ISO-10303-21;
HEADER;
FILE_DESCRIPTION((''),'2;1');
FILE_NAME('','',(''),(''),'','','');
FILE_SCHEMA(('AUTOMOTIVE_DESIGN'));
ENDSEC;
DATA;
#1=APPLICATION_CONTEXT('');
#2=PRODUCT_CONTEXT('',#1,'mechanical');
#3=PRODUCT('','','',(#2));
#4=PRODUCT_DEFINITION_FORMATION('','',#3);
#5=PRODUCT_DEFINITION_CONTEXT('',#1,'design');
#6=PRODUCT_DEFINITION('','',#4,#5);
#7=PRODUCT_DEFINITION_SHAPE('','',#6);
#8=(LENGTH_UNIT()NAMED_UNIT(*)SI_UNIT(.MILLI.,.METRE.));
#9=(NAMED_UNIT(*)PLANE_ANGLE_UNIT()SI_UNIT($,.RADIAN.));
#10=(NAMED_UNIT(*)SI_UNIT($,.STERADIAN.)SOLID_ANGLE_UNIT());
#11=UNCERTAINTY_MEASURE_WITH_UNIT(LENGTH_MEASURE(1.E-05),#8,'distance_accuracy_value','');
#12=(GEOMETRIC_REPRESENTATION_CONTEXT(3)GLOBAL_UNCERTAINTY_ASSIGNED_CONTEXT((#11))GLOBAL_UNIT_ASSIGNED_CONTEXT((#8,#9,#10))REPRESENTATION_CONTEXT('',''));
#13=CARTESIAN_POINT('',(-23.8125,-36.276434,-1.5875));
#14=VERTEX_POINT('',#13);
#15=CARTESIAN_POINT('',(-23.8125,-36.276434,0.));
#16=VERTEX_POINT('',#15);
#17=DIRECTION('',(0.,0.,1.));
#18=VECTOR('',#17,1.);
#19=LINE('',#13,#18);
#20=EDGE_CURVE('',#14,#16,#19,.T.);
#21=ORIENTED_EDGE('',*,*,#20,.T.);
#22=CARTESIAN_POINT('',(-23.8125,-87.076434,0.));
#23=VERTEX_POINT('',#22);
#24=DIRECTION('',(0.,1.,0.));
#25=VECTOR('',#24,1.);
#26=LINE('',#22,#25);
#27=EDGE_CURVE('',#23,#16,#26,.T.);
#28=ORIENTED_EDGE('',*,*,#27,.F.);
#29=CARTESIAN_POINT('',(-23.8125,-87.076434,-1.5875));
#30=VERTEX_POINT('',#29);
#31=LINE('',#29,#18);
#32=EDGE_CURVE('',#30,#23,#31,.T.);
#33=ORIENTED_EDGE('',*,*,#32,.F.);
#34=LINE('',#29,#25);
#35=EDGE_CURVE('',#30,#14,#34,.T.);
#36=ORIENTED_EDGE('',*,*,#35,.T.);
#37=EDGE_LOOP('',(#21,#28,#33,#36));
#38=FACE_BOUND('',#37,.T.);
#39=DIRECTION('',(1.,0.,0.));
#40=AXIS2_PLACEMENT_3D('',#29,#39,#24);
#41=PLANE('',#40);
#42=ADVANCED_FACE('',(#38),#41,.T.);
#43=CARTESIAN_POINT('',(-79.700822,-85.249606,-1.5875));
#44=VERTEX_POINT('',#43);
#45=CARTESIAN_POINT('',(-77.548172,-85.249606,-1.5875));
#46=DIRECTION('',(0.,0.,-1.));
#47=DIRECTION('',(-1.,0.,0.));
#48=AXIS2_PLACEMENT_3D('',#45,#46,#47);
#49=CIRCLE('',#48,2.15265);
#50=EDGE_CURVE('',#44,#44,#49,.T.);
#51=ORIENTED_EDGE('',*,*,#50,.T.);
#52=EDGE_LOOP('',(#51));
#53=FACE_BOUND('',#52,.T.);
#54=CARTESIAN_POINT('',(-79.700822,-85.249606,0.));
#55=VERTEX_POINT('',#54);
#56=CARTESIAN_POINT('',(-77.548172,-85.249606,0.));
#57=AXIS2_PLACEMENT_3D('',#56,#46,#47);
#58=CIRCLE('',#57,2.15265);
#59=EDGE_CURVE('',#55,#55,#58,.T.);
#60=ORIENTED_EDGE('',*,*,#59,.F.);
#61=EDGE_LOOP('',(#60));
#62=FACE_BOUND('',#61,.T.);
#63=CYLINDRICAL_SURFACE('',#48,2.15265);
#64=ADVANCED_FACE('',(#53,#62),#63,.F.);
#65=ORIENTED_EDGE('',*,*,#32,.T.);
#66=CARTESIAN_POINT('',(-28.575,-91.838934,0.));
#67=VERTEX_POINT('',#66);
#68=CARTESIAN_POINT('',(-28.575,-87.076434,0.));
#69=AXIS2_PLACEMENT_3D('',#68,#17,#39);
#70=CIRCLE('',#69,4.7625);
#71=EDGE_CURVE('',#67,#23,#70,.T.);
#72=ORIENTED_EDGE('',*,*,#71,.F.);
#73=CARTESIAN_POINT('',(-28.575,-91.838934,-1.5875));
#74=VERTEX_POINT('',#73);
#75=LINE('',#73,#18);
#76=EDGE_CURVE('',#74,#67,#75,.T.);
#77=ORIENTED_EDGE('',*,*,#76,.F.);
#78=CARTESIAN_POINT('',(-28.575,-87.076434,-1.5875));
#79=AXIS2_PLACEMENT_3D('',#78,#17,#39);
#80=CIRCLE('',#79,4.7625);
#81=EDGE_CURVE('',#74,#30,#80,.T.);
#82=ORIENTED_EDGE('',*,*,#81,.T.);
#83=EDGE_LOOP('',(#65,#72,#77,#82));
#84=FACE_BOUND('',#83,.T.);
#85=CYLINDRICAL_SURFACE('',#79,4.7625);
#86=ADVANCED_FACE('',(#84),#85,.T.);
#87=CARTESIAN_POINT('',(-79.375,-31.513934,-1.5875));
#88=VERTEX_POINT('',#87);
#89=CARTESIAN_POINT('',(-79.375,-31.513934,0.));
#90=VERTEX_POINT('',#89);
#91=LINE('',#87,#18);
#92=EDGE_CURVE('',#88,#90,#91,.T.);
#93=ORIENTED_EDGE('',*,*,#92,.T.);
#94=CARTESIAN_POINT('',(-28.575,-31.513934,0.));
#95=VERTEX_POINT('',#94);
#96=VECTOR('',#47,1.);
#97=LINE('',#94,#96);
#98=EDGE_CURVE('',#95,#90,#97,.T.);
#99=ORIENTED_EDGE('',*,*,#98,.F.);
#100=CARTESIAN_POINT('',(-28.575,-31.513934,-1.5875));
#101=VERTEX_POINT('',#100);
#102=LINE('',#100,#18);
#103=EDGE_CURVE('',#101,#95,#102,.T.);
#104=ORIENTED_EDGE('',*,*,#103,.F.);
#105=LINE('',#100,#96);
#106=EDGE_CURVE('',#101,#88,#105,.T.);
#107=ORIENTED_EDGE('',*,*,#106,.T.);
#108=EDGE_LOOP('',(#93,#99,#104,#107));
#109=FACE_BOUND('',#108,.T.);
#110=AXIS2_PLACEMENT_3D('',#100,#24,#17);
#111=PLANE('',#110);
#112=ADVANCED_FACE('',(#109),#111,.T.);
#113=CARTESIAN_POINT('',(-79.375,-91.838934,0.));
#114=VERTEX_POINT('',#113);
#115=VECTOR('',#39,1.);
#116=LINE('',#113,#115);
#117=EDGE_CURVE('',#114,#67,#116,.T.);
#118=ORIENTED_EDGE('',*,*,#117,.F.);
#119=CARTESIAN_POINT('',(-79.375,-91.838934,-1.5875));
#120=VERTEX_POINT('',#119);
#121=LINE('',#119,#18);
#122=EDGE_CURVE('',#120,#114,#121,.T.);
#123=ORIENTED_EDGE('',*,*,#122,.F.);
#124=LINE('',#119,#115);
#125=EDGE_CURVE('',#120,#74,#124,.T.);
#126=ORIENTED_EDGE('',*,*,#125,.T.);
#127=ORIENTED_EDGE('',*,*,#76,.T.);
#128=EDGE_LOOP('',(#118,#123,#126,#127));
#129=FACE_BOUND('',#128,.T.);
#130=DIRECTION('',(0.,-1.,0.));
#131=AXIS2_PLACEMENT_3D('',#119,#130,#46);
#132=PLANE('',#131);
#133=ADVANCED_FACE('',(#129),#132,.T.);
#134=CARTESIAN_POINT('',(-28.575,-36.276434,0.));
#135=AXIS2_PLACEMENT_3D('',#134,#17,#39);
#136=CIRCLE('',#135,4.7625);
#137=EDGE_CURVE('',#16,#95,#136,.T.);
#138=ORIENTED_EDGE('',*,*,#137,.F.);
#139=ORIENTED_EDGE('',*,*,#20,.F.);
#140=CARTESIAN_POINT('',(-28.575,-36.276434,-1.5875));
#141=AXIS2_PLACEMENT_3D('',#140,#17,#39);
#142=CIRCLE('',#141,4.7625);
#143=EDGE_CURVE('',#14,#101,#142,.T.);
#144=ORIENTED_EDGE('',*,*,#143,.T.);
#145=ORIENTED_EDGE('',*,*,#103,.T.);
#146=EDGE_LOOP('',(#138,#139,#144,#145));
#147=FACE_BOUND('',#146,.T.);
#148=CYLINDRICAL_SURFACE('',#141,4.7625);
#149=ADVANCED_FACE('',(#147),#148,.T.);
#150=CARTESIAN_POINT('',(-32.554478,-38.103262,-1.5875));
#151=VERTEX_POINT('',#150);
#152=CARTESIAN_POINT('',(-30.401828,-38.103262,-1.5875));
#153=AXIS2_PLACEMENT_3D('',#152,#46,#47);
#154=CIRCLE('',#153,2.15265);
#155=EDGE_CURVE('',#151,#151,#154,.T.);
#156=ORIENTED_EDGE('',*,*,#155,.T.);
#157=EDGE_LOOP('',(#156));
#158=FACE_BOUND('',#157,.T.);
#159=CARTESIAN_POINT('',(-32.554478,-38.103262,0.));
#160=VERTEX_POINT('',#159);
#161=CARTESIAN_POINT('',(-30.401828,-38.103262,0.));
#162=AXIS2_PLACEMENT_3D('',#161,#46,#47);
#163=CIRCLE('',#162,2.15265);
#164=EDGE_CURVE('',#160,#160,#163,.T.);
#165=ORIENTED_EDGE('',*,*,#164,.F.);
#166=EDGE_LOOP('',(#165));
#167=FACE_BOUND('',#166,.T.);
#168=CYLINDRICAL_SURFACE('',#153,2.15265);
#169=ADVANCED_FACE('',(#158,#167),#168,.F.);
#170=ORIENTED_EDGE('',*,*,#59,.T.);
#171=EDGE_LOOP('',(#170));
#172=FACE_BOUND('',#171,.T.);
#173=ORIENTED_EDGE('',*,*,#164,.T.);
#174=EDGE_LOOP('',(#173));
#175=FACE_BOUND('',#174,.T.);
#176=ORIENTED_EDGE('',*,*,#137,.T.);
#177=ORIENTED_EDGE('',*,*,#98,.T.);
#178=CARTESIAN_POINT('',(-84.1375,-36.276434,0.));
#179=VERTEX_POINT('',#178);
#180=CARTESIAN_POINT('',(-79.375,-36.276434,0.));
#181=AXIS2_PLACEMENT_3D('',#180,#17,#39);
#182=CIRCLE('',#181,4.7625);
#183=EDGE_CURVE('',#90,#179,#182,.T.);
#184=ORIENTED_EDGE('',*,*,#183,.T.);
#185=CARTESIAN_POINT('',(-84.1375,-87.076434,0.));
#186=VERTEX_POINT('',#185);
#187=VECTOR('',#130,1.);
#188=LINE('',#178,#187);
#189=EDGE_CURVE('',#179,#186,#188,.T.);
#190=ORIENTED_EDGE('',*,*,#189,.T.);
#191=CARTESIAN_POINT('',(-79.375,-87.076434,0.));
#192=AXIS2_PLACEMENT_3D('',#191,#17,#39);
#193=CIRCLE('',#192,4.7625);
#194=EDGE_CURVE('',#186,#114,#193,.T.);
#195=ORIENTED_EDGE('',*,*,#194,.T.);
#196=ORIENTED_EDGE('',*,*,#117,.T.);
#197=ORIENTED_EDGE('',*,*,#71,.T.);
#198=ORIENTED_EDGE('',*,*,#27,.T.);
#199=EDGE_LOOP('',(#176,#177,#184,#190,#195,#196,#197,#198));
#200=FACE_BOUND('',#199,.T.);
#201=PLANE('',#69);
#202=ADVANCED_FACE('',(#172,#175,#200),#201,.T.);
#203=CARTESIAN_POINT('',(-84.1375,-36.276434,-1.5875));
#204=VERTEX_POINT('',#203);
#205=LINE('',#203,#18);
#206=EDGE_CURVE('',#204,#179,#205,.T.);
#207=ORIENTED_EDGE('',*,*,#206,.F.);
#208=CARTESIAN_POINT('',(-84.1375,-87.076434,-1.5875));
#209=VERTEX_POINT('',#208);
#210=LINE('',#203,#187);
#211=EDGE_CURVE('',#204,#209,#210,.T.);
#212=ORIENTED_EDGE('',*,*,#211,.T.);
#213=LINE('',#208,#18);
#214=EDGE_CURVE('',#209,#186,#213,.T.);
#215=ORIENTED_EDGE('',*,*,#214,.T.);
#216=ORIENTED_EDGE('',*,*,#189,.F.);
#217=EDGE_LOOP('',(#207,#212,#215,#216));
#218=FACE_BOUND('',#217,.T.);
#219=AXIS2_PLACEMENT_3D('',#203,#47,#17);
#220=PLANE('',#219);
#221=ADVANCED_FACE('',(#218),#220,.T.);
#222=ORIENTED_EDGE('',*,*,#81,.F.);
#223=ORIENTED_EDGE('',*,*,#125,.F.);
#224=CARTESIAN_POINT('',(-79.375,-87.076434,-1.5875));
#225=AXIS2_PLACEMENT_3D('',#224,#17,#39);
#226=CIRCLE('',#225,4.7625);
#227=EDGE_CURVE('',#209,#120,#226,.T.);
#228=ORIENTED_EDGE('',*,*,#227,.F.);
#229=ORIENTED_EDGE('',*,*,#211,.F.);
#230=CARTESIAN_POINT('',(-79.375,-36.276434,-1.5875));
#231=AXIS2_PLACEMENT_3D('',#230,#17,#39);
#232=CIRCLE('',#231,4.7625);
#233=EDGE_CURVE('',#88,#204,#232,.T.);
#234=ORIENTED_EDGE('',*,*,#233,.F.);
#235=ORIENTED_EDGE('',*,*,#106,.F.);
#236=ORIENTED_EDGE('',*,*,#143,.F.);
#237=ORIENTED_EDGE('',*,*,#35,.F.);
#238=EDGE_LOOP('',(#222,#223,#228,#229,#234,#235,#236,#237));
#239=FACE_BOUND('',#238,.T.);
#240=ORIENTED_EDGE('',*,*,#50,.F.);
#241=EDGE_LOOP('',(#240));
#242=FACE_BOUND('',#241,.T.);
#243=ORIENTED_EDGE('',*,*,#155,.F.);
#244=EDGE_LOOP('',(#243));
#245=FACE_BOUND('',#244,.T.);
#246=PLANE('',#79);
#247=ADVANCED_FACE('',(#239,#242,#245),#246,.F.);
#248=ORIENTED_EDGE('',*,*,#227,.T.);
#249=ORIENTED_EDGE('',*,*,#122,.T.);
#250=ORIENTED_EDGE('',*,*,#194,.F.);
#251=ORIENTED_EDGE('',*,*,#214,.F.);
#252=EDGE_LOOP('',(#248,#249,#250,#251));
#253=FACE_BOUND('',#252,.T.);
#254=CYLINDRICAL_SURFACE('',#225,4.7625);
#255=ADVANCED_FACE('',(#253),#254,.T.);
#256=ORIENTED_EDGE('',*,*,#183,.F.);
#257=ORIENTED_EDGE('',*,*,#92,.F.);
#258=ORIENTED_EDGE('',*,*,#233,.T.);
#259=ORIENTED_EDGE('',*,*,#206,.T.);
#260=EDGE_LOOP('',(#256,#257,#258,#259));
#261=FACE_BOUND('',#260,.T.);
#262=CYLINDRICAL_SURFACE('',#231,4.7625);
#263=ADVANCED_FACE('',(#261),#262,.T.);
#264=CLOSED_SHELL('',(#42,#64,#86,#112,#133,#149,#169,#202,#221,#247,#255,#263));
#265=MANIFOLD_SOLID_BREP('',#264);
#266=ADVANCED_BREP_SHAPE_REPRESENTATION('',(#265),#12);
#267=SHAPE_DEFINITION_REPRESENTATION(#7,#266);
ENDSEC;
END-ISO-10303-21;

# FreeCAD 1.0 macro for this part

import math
import FreeCAD as App
import Part
import Sketcher
Q = App.Units.Quantity

doc = App.newDocument("Part")
body = doc.addObject("PartDesign::Body", "Body")

sketch1 = body.newObject("Sketcher::SketchObject", "Sketch")
sketch1.AttachmentSupport = (doc.getObject("XY_Plane"), [""])
sketch1.MapMode = "FlatFace"
sketch1.addGeometry([
    Part.LineSegment(App.Vector(-23.8125, -87.076434, 0), App.Vector(-23.8125, -36.276434, 0)),
    Part.ArcOfCircle(Part.Circle(App.Vector(-28.575, -36.276434, 0), App.Vector(0, 0, 1), 4.7625), math.radians(0), math.radians(90)),
    Part.LineSegment(App.Vector(-28.575, -31.513934, 0), App.Vector(-79.375, -31.513934, 0)),
    Part.ArcOfCircle(Part.Circle(App.Vector(-79.375, -36.276434, 0), App.Vector(0, 0, 1), 4.7625), math.radians(90), math.radians(180)),
    Part.LineSegment(App.Vector(-84.1375, -36.276434, 0), App.Vector(-84.1375, -87.076434, 0)),
    Part.ArcOfCircle(Part.Circle(App.Vector(-79.375, -87.076434, 0), App.Vector(0, 0, 1), 4.7625), math.radians(180), math.radians(270)),
    Part.LineSegment(App.Vector(-79.375, -91.838934, 0), App.Vector(-28.575, -91.838934, 0)),
    Part.ArcOfCircle(Part.Circle(App.Vector(-28.575, -87.076434, 0), App.Vector(0, 0, 1), 4.7625), math.radians(-90), math.radians(0)),
], False)
sketch1.addConstraint([
    Sketcher.Constraint("Tangent", 0, 2, 1, 1),
    Sketcher.Constraint("Tangent", 1, 2, 2, 1),
    Sketcher.Constraint("Tangent", 2, 2, 3, 1),
    Sketcher.Constraint("Tangent", 3, 2, 4, 1),
    Sketcher.Constraint("Tangent", 4, 2, 5, 1),
    Sketcher.Constraint("Tangent", 5, 2, 6, 1),
    Sketcher.Constraint("Tangent", 6, 2, 7, 1),
    Sketcher.Constraint("Tangent", 7, 2, 0, 1),
    Sketcher.Constraint("Vertical", 0),
    Sketcher.Constraint("Horizontal", 2),
    Sketcher.Constraint("Vertical", 4),
    Sketcher.Constraint("Horizontal", 6),
    Sketcher.Constraint("Equal", 1, 3),
    Sketcher.Constraint("Equal", 3, 5),
    Sketcher.Constraint("Equal", 5, 7),
    Sketcher.Constraint("Equal", 6, 0),
    Sketcher.Constraint("DistanceX", 2, 2, 2, 1, Q("2 in")),
    Sketcher.Constraint("Radius", 1, Q("0.1875 in")),
    Sketcher.Constraint("DistanceX", 1, 3, -1, 1, Q("1.125 in")),
    Sketcher.Constraint("DistanceY", 1, 3, -1, 1, Q("36.276434 mm")),
])
pad1 = body.newObject("PartDesign::Pad", "Pad")
pad1.Profile = sketch1
pad1.Length = Q("0.0625 in")
pad1.Reversed = True

sketch2 = body.newObject("Sketcher::SketchObject", "Sketch001")
sketch2.AttachmentSupport = (doc.getObject("XY_Plane"), [""])
sketch2.MapMode = "FlatFace"
sketch2.AttachmentOffset = App.Placement(App.Vector(0, 0, -0.0625 * 25.4), App.Rotation())
sketch2.addGeometry([
    Part.Circle(App.Vector(-30.401828, -38.103262, 0), App.Vector(0, 0, 1), 2.15265),
    Part.Circle(App.Vector(-77.548172, -85.249606, 0), App.Vector(0, 0, 1), 2.15265),
], False)
sketch2.addConstraint([
    Sketcher.Constraint("Equal", 0, 1),
    Sketcher.Constraint("Diameter", 0, Q("0.1695 in")),
    Sketcher.Constraint("DistanceY", 0, 3, -1, 1, Q("38.103262 mm")),
    Sketcher.Constraint("DistanceX", 0, 3, -1, 1, Q("30.401828 mm")),
    Sketcher.Constraint("DistanceX", 1, 3, -1, 1, Q("77.548172 mm")),
    Sketcher.Constraint("DistanceY", 1, 3, -1, 1, Q("85.249606 mm")),
])
doc.recompute()
hole = body.newObject("PartDesign::Hole", "Hole")
hole.Profile = sketch2
hole.ThreadType = "None"
hole.Diameter = Q("0.1695 in")
hole.DepthType = "ThroughAll"
hole.Reversed = True

doc.recompute()
